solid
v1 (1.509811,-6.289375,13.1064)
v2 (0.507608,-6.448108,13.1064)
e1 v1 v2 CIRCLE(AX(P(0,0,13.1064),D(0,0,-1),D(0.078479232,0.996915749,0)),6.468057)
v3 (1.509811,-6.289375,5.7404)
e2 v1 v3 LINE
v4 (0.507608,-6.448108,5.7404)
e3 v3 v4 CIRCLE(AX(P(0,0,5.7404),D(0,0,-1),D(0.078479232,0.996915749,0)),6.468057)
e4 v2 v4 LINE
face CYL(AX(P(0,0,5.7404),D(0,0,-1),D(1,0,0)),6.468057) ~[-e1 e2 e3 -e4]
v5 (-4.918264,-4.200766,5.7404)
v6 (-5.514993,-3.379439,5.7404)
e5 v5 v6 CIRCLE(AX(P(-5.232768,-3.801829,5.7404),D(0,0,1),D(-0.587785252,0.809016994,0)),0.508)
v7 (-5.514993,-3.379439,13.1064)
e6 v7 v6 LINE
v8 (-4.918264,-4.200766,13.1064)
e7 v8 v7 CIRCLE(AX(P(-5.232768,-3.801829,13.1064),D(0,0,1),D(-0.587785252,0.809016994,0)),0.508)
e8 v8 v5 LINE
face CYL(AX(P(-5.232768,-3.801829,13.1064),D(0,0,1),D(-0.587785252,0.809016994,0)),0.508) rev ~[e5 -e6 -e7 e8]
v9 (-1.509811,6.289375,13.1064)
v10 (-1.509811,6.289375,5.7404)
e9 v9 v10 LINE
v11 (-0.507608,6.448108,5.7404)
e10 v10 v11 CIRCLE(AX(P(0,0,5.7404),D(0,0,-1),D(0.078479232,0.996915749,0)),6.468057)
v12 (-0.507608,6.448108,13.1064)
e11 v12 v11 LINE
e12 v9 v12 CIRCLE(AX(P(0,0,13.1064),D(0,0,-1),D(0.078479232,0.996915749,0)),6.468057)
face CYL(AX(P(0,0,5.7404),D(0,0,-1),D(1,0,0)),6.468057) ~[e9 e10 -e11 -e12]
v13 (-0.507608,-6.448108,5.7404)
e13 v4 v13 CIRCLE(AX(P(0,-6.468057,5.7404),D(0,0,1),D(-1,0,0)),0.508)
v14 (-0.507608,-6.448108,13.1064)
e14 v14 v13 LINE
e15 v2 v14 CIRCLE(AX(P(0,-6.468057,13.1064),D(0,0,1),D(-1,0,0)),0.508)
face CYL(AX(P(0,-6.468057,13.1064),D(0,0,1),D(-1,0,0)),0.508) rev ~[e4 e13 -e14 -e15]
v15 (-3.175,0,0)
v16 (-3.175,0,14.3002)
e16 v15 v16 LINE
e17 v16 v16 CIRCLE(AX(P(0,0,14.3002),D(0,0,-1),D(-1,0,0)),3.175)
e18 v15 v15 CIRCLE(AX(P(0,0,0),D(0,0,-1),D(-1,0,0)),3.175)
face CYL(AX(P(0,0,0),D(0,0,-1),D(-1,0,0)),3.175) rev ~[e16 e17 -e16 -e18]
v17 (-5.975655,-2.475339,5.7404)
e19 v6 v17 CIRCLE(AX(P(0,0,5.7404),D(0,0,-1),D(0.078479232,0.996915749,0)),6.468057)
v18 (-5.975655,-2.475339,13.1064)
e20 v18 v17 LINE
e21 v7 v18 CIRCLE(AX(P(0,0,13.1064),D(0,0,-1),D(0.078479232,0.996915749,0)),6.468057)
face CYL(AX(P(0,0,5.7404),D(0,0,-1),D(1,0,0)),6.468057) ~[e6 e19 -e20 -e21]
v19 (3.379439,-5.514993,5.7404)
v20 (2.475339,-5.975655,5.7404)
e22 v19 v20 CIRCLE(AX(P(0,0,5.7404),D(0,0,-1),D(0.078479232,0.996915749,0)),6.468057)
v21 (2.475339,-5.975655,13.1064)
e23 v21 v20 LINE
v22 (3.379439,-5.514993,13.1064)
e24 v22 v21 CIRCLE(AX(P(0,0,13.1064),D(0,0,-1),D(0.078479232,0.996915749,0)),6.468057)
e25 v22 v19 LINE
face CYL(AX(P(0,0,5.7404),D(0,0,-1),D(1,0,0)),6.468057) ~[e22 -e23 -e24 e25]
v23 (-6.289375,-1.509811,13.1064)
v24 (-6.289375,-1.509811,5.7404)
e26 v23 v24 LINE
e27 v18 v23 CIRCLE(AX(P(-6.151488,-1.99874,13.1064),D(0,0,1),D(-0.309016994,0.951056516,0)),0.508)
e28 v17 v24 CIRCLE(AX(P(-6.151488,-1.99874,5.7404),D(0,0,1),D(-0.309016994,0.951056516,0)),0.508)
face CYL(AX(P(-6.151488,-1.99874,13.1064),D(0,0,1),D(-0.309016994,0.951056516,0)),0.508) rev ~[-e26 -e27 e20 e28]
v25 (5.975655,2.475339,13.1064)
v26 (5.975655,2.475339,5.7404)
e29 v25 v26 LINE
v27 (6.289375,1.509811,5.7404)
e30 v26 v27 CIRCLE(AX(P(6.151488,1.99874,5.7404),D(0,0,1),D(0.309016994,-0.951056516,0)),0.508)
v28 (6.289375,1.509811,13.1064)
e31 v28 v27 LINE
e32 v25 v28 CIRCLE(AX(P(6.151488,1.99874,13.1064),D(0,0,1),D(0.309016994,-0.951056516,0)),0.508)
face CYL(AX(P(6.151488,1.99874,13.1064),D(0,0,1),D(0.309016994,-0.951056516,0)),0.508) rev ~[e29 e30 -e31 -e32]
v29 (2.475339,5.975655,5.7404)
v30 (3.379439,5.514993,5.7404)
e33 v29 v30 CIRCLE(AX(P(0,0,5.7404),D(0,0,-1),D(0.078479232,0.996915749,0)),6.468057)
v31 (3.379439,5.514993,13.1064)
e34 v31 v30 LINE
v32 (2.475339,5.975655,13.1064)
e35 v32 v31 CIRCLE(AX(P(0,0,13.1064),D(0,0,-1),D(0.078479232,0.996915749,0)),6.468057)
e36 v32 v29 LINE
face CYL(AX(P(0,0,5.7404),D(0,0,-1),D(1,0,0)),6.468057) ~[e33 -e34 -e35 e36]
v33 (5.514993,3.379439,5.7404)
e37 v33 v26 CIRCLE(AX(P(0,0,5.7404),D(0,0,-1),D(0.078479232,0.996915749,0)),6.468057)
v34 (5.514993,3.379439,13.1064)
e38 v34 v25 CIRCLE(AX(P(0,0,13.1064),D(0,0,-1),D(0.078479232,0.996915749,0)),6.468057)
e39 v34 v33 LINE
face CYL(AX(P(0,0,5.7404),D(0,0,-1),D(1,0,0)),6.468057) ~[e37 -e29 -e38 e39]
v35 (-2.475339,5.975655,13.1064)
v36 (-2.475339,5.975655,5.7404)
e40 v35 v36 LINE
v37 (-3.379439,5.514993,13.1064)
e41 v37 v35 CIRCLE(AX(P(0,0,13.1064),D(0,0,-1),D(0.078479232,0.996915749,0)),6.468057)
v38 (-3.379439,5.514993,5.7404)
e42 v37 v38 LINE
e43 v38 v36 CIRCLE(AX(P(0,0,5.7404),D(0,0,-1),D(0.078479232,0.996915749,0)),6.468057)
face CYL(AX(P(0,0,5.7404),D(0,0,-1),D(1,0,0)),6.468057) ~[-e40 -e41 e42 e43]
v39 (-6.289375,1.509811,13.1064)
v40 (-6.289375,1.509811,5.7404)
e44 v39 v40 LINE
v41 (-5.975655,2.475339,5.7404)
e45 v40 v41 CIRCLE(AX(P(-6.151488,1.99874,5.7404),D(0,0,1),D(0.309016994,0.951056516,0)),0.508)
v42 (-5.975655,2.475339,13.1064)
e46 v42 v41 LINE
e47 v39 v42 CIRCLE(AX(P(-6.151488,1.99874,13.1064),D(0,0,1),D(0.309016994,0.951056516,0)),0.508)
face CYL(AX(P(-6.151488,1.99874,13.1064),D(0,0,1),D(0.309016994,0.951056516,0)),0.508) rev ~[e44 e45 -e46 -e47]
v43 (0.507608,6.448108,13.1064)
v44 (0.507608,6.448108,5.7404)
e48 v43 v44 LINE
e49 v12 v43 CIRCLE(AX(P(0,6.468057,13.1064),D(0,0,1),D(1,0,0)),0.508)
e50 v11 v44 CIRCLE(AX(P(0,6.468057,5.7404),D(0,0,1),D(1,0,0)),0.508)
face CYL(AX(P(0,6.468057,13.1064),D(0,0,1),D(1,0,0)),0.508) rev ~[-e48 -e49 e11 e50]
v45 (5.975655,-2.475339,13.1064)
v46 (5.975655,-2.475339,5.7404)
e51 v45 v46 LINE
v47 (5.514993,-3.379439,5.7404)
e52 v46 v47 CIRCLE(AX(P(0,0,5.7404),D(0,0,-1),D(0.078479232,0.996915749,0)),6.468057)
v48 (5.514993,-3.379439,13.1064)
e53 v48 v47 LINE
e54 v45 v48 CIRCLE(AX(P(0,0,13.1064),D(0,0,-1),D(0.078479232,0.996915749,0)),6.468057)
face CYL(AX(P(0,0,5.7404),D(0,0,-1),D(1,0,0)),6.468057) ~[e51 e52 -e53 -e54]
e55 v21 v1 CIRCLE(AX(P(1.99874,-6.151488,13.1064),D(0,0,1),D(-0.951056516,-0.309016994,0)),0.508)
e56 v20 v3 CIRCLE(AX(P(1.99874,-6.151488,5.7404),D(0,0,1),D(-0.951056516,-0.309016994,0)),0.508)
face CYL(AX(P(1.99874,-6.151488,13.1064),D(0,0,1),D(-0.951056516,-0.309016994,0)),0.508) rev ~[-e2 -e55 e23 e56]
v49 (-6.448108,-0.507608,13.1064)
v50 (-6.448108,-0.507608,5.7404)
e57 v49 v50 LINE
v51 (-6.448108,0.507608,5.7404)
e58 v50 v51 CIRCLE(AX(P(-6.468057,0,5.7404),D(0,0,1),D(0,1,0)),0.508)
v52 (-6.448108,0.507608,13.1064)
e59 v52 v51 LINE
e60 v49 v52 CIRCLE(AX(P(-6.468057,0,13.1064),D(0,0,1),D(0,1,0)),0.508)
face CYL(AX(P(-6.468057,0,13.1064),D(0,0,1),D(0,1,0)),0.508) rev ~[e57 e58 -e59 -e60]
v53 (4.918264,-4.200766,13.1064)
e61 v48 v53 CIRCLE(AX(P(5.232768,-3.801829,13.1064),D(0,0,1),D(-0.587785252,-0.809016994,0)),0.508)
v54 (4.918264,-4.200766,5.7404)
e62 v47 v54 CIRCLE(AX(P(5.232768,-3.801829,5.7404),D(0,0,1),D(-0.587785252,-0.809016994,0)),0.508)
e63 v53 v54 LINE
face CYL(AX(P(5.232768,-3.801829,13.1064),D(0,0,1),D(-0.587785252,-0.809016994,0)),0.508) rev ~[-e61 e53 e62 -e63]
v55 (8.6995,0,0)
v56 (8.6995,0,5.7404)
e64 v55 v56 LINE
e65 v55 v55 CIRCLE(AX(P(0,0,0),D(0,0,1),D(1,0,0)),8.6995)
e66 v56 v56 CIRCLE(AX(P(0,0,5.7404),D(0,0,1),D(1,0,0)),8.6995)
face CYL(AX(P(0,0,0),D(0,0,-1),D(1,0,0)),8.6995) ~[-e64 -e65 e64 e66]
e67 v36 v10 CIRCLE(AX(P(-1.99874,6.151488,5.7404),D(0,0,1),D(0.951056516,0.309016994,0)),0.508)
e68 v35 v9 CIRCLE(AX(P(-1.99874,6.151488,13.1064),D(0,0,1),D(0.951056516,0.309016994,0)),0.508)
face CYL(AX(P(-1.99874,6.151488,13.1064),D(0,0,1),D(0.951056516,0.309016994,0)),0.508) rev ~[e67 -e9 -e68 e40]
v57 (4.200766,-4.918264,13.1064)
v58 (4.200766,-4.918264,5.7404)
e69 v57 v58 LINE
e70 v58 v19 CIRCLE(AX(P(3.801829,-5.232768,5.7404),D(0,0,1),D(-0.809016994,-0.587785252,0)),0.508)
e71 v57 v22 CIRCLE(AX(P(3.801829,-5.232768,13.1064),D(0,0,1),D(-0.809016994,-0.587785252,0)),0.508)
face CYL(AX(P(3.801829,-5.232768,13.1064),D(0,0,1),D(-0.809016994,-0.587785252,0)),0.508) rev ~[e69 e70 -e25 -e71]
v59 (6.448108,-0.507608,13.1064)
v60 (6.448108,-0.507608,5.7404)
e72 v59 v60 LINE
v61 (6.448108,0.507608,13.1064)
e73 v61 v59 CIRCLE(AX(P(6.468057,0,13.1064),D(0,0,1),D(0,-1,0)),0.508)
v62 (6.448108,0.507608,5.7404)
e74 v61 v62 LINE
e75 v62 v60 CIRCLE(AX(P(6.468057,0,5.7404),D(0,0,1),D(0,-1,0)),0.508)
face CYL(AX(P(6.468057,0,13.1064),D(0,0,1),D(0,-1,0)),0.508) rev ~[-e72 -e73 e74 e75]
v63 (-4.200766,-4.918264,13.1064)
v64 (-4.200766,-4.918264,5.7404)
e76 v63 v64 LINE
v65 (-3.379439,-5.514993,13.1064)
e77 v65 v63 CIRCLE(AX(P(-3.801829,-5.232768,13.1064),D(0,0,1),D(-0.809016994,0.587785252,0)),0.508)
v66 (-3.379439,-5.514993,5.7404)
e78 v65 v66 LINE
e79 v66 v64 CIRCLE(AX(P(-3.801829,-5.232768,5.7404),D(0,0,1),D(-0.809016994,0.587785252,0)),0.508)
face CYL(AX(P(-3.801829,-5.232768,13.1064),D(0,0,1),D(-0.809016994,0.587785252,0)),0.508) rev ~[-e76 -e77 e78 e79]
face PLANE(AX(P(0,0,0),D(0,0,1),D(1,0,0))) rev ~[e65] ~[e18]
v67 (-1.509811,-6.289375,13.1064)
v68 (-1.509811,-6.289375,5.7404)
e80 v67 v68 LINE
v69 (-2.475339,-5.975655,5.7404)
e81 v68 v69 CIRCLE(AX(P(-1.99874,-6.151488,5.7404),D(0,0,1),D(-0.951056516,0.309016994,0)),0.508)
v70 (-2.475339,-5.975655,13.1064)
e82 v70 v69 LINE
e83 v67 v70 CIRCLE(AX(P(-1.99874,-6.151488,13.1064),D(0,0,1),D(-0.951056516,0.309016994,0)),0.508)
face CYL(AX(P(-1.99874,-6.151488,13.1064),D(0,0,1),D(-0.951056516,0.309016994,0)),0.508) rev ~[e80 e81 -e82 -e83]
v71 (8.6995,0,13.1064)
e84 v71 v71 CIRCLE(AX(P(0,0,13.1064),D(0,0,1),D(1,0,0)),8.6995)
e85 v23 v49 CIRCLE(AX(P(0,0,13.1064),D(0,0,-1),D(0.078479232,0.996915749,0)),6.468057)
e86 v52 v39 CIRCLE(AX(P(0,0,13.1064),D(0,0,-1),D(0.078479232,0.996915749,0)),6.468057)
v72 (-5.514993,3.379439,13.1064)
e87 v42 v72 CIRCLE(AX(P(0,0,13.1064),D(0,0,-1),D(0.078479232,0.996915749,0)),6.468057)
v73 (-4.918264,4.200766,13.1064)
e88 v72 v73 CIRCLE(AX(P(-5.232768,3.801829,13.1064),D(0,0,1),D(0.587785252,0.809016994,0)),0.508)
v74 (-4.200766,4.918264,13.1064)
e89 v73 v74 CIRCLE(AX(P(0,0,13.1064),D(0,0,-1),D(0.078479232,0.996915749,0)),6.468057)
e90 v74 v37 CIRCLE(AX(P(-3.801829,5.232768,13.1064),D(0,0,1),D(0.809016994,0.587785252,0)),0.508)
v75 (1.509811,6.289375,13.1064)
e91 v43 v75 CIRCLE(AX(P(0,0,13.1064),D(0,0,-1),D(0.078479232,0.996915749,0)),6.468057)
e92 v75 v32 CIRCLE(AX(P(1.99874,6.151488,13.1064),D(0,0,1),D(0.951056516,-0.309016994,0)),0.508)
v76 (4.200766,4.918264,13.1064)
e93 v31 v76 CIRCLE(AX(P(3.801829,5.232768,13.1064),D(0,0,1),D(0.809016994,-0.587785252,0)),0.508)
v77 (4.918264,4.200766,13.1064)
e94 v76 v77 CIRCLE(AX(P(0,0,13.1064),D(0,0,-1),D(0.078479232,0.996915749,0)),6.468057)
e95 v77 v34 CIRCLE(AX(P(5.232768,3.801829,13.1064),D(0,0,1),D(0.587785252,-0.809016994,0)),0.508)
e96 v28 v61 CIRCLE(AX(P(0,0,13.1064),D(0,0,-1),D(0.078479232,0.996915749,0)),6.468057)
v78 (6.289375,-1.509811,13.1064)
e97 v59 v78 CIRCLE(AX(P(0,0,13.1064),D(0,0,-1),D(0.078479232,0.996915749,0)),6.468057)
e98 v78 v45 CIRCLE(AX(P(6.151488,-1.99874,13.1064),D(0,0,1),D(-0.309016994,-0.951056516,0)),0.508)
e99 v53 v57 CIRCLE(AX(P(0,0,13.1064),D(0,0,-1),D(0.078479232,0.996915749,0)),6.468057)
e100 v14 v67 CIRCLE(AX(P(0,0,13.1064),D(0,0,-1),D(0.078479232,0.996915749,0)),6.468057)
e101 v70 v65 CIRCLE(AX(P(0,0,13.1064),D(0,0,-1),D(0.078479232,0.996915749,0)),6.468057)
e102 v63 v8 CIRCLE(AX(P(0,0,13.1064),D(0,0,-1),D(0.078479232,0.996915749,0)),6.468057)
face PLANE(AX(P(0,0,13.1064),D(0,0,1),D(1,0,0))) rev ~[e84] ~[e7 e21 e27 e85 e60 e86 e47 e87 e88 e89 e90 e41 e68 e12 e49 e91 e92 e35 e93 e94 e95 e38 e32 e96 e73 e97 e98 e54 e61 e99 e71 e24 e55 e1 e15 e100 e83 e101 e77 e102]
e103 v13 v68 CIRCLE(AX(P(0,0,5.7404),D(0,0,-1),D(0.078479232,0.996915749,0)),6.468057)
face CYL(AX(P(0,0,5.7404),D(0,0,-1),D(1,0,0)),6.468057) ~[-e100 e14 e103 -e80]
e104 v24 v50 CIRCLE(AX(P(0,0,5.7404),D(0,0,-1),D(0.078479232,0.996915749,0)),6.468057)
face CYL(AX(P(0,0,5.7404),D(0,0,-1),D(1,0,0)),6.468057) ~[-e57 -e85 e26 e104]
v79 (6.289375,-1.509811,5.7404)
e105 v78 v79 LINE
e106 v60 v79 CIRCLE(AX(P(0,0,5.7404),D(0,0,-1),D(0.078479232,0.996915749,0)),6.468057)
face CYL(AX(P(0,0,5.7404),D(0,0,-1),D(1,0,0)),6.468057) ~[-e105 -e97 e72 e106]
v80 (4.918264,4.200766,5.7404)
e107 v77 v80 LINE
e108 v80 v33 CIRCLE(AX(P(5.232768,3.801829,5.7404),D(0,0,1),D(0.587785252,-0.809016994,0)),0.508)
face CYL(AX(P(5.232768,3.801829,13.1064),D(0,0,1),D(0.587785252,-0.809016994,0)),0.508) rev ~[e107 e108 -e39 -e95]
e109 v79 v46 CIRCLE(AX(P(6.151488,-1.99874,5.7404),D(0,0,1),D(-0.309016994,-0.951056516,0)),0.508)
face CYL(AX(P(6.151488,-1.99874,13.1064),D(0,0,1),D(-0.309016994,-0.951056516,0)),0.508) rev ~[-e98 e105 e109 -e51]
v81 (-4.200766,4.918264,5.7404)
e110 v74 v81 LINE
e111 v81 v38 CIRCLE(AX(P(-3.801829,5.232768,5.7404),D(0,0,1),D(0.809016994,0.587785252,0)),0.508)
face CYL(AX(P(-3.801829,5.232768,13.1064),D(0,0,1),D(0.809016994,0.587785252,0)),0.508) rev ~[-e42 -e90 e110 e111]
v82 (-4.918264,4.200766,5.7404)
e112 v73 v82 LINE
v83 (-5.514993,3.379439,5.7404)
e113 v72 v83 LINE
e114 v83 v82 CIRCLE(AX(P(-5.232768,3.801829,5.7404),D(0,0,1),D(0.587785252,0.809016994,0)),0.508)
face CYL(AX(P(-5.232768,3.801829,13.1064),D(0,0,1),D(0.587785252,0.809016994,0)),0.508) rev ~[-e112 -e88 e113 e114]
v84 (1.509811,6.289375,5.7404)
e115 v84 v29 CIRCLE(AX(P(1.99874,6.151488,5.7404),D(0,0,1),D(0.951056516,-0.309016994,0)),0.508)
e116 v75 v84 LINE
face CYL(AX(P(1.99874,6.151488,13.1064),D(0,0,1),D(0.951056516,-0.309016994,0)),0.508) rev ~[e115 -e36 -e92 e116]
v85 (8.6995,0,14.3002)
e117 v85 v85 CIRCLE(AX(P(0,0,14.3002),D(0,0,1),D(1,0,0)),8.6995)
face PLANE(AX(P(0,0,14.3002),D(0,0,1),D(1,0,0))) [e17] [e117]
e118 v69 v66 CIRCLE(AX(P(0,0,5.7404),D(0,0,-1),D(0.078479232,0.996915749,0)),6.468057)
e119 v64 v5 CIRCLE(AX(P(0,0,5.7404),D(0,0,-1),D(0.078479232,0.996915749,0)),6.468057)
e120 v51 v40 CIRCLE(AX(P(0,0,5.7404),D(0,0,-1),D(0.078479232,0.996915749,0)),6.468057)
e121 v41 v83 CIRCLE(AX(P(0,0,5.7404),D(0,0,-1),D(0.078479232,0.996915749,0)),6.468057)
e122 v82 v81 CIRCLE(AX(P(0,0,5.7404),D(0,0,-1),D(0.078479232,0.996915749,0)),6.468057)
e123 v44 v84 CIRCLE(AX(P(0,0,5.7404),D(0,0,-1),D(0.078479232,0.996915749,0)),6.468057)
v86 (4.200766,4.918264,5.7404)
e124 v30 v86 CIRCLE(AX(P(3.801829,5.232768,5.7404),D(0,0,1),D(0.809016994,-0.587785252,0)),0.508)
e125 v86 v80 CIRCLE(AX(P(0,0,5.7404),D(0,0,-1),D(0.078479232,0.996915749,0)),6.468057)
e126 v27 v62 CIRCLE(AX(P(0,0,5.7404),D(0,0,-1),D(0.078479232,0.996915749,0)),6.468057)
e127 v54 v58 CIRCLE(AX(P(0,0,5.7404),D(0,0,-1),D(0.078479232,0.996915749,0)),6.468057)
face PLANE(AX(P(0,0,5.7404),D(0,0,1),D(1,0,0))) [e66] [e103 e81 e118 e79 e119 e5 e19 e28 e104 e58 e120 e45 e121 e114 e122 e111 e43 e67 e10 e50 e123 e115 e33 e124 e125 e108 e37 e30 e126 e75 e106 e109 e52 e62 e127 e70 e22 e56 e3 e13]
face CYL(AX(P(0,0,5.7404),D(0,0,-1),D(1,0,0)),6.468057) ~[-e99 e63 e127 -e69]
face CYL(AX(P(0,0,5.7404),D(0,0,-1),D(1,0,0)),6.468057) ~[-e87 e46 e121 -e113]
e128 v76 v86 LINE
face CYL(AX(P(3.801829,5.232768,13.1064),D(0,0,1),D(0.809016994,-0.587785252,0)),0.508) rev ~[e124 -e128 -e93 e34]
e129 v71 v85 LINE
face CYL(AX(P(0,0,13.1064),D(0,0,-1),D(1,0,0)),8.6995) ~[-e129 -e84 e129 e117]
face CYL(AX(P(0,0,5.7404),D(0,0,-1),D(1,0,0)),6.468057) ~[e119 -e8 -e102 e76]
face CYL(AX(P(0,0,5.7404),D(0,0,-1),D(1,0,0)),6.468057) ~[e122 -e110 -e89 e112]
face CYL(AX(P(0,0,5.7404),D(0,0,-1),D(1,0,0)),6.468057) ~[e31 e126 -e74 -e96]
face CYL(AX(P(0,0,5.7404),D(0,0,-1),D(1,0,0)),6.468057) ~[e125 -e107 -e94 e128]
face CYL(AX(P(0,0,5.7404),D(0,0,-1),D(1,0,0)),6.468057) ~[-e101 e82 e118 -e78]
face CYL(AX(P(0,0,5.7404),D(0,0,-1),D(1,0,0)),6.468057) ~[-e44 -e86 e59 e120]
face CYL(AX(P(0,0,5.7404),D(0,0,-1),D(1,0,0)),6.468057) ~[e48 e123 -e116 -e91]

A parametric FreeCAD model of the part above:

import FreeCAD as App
import Part
import Sketcher
Q = App.Units.Quantity

doc = App.newDocument("Part")
body = doc.addObject("PartDesign::Body", "Body")

# Sketch on XY plane
sketch1 = body.newObject("Sketcher::SketchObject", "Sketch")
sketch1.AttachmentSupport = (doc.getObject("XY_Plane"), [""])
sketch1.MapMode = "FlatFace"
sketch1.addGeometry(Part.Circle(App.Vector(0, 0, 0), App.Vector(0, 0, 1), 9), False)
sketch1.addConstraint([
    Sketcher.Constraint("Coincident", 0, 3, -1, 1),
    Sketcher.Constraint("Diameter", 0, Q("0.685 in")),
])
pad1 = body.newObject("PartDesign::Pad", "Pad")
pad1.Profile = sketch1
pad1.Length = Q("0.226 in")

# Sketch on XY plane
sketch2 = body.newObject("Sketcher::SketchObject", "Sketch001")
sketch2.AttachmentSupport = (doc.getObject("XY_Plane"), [""])
sketch2.MapMode = "FlatFace"
sketch2.AttachmentOffset = App.Placement(App.Vector(0, 0, 0.226 * 25.4), App.Rotation())
sketch2.addGeometry(Part.Circle(App.Vector(0, 0, 0), App.Vector(0, 0, 1), 6), False)
sketch2.addConstraint([
    Sketcher.Constraint("Coincident", 0, 3, -1, 1),
    Sketcher.Constraint("Diameter", 0, 12.936114),
])
pad2 = body.newObject("PartDesign::Pad", "Pad001")
pad2.Profile = sketch2
pad2.Length = Q("0.29 in")

# Sketch on XY plane
sketch3 = body.newObject("Sketcher::SketchObject", "Sketch002")
sketch3.AttachmentSupport = (doc.getObject("XY_Plane"), [""])
sketch3.MapMode = "FlatFace"
sketch3.AttachmentOffset = App.Placement(App.Vector(0, 0, 0.516 * 25.4), App.Rotation())
sketch3.addGeometry(Part.Circle(App.Vector(0, 6.5, 0), App.Vector(0, 0, 1), 0.5), False)
sketch3.addConstraint([
    Sketcher.Constraint("PointOnObject", 0, 3, -2),
    Sketcher.Constraint("Diameter", 0, Q("0.04 in")),
    Sketcher.Constraint("DistanceY", -1, 1, 0, 3, 6.468057),
])
pocket1 = body.newObject("PartDesign::Pocket", "Pocket")
pocket1.Profile = sketch3
pocket1.Length = Q("0.29 in")
doc.recompute()

polarpattern = body.newObject("PartDesign::PolarPattern", "PolarPattern")
polarpattern.Originals = [pocket1]
polarpattern.Axis = (doc.getObject("Z_Axis"), [""])
polarpattern.Angle = 360
polarpattern.Occurrences = 20
body.Tip = polarpattern

# Sketch on XY plane
sketch4 = body.newObject("Sketcher::SketchObject", "Sketch003")
sketch4.AttachmentSupport = (doc.getObject("XY_Plane"), [""])
sketch4.MapMode = "FlatFace"
sketch4.AttachmentOffset = App.Placement(App.Vector(0, 0, 0.516 * 25.4), App.Rotation())
sketch4.addGeometry(Part.Circle(App.Vector(0, 0, 0), App.Vector(0, 0, 1), 9), False)
sketch4.addConstraint([
    Sketcher.Constraint("Coincident", 0, 3, -1, 1),
    Sketcher.Constraint("Diameter", 0, Q("0.685 in")),
])
pad3 = body.newObject("PartDesign::Pad", "Pad002")
pad3.Profile = sketch4
pad3.Length = Q("0.047 in")

# Sketch on XY plane
sketch5 = body.newObject("Sketcher::SketchObject", "Sketch004")
sketch5.AttachmentSupport = (doc.getObject("XY_Plane"), [""])
sketch5.MapMode = "FlatFace"
sketch5.addGeometry(Part.Circle(App.Vector(0, 0, 0), App.Vector(0, 0, 1), 3.2), False)
sketch5.addConstraint([
    Sketcher.Constraint("Coincident", 0, 3, -1, 1),
    Sketcher.Constraint("Diameter", 0, Q("0.25 in")),
])
pocket2 = body.newObject("PartDesign::Pocket", "Pocket001")
pocket2.Profile = sketch5
pocket2.Type = "ThroughAll"
pocket2.Reversed = True

doc.recompute()
